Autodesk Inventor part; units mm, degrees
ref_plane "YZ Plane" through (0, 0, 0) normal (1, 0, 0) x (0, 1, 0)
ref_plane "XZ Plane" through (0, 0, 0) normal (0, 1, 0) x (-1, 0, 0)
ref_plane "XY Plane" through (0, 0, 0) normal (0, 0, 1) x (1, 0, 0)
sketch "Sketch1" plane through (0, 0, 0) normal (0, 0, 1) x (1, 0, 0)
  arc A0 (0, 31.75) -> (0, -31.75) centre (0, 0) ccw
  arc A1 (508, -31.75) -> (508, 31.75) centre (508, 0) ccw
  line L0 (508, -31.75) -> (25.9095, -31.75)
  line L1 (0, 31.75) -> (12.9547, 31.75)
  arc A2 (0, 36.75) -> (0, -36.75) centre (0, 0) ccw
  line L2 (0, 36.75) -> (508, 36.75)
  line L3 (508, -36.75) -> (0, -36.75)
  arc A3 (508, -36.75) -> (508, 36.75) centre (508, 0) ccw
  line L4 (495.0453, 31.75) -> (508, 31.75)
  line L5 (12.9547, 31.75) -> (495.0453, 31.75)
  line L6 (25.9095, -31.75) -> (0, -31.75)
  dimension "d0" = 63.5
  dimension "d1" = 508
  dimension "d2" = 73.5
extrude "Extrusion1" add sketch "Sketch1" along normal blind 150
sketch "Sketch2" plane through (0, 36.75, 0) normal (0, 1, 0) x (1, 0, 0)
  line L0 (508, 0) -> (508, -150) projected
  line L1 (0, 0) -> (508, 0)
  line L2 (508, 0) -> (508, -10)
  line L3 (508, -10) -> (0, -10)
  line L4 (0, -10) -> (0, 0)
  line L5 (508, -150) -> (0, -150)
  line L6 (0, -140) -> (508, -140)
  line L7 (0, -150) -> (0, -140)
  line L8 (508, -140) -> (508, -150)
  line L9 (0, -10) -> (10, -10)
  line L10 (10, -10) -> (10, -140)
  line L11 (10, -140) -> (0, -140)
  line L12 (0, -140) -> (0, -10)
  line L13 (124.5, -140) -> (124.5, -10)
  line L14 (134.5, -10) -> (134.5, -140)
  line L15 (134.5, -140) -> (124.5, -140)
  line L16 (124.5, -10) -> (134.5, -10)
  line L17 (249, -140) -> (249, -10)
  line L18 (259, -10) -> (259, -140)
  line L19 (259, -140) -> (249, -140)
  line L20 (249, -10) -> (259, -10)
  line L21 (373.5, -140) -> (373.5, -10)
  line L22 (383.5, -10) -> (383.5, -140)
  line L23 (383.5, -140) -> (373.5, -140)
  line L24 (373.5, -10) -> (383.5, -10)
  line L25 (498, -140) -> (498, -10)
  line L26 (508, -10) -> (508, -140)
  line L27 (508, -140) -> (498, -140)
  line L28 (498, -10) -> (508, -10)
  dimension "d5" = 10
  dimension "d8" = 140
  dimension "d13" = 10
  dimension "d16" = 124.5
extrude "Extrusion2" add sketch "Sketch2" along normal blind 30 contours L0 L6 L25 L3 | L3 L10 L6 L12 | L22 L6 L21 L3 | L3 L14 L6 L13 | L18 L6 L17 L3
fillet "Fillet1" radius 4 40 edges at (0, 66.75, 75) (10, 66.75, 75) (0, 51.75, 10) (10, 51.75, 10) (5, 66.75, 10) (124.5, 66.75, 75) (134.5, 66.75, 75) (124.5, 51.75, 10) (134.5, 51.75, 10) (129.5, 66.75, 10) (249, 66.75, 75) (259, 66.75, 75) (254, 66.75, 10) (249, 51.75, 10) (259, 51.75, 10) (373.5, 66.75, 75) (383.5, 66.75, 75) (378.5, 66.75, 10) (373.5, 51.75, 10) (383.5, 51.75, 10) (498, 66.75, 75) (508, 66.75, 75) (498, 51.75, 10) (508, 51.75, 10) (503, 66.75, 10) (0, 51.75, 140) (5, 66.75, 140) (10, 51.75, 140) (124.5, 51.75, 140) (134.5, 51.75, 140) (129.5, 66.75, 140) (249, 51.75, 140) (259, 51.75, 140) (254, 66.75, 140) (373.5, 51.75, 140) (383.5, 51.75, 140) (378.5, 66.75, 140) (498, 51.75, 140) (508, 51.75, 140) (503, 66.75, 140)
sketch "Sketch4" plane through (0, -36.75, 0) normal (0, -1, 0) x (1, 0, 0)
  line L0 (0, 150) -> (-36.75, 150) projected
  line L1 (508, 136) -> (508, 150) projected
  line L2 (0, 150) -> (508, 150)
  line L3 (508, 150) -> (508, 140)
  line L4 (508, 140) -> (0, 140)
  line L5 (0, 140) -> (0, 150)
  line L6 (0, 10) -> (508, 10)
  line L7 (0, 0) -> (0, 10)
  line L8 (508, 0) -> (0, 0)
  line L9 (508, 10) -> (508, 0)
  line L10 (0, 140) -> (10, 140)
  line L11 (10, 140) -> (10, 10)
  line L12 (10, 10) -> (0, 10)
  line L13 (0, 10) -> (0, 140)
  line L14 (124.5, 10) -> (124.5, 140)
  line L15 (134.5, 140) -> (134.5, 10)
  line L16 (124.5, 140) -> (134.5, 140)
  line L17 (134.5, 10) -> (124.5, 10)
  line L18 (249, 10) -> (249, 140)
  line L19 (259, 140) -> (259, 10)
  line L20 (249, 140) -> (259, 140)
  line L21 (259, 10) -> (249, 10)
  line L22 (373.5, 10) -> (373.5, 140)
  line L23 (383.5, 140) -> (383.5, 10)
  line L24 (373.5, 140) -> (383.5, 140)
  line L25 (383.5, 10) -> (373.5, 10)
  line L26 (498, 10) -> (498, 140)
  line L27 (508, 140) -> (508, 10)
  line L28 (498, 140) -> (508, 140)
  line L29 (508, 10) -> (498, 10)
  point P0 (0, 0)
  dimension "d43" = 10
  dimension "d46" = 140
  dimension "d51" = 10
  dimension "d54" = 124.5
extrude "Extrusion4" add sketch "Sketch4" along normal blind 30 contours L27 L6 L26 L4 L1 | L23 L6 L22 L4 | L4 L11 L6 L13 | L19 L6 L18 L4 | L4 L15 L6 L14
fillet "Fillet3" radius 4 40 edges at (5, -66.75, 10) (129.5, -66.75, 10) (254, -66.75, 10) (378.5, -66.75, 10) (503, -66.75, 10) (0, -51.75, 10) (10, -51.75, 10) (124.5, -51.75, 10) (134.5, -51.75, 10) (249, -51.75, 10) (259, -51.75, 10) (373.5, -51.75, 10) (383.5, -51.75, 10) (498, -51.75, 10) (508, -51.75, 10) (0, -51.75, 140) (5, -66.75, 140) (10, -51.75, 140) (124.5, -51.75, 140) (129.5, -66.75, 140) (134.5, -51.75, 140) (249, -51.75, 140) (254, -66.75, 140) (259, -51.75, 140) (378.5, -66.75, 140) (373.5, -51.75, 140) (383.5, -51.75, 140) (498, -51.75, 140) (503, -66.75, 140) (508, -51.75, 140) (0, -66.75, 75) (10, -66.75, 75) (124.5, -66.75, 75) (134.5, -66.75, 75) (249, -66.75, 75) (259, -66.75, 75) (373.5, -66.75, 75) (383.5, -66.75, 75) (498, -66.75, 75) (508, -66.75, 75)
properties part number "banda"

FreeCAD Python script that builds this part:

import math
import FreeCAD as App
import Part
import Sketcher
from FreeCAD import Vector
Q = App.Units.Quantity


def edges_at(feature, points):
    """Names of the edges that pass closest to the given points."""
    edges = feature.Shape.Edges
    near = lambda p: min(range(len(edges)), key=lambda i: edges[i].distToShape(Part.Vertex(*p))[0])
    return sorted({f"Edge{near(p) + 1}" for p in points})

doc = App.newDocument("Part")
body = doc.addObject("PartDesign::Body", "Body")

# Sketch on XY plane
sketch1 = body.newObject("Sketcher::SketchObject", "Sketch")
sketch1.AttachmentSupport = (doc.getObject("XY_Plane"), [""])
sketch1.MapMode = "FlatFace"
sketch1.addGeometry(Part.LineSegment(Vector(508, 37, 0), Vector(0, 37, 0)), False)
sketch1.addGeometry(Part.ArcOfCircle(Part.Circle(Vector(0, 0, 0), Vector(0, 0, 1), 37), math.radians(90), math.radians(270)), False)
sketch1.addGeometry(Part.LineSegment(Vector(0, -37, 0), Vector(508, -37, 0)), False)
sketch1.addGeometry(Part.ArcOfCircle(Part.Circle(Vector(508, 0, 0), Vector(0, 0, 1), 37), math.radians(-90), math.radians(90)), False)
sketch1.addGeometry(Part.ArcOfCircle(Part.Circle(Vector(0, 0, 0), Vector(0, 0, 1), 32), math.radians(90), math.radians(270)), False)
sketch1.addGeometry(Part.LineSegment(Vector(0, 32, 0), Vector(508, 32, 0)), False)
sketch1.addGeometry(Part.ArcOfCircle(Part.Circle(Vector(508, 0, 0), Vector(0, 0, 1), 32), math.radians(-90), math.radians(90)), False)
sketch1.addGeometry(Part.LineSegment(Vector(508, -32, 0), Vector(0, -32, 0)), False)
sketch1.addConstraint(Sketcher.Constraint("Tangent", 0, 2, 1, 1))
sketch1.addConstraint(Sketcher.Constraint("Tangent", 1, 2, 2, 1))
sketch1.addConstraint(Sketcher.Constraint("Tangent", 2, 2, 3, 1))
sketch1.addConstraint(Sketcher.Constraint("Tangent", 3, 2, 0, 1))
sketch1.addConstraint(Sketcher.Constraint("Tangent", 4, 1, 5, 1))
sketch1.addConstraint(Sketcher.Constraint("Tangent", 5, 2, 6, 2))
sketch1.addConstraint(Sketcher.Constraint("Tangent", 6, 1, 7, 1))
sketch1.addConstraint(Sketcher.Constraint("Tangent", 7, 2, 4, 2))
sketch1.addConstraint(Sketcher.Constraint("Horizontal", 0))
sketch1.addConstraint(Sketcher.Constraint("Horizontal", 2))
sketch1.addConstraint(Sketcher.Constraint("Horizontal", 5))
sketch1.addConstraint(Sketcher.Constraint("Horizontal", 7))
sketch1.addConstraint(Sketcher.Constraint("Coincident", 1, 3, -1, 1))
sketch1.addConstraint(Sketcher.Constraint("Coincident", 4, 3, -1, 1))
sketch1.addConstraint(Sketcher.Constraint("Vertical", 6, 3, 2, 2))
sketch1.addConstraint(Sketcher.Constraint("DistanceX", 0, 2, 0, 1, Q("20 in")))
sketch1.addConstraint(Sketcher.Constraint("Radius", 4, Q("1.25 in")))
sketch1.addConstraint(Sketcher.Constraint("Radius", 1, 36.75))
pad1 = body.newObject("PartDesign::Pad", "Pad")
pad1.Profile = sketch1
pad1.Length = Q("5.9055118 in")

# Sketch on XZ plane
sketch2 = body.newObject("Sketcher::SketchObject", "Sketch001")
sketch2.AttachmentSupport = (doc.getObject("XZ_Plane"), [""])
sketch2.MapMode = "FlatFace"
sketch2.AttachmentOffset = App.Placement(Vector(0, 0, -36.75), App.Rotation())
sketch2.addGeometry(Part.LineSegment(Vector(508, 140, 0), Vector(508, 10, 0)), False)
sketch2.addGeometry(Part.LineSegment(Vector(508, 10, 0), Vector(498, 10, 0)), False)
sketch2.addGeometry(Part.LineSegment(Vector(498, 10, 0), Vector(498, 140, 0)), False)
sketch2.addGeometry(Part.LineSegment(Vector(498, 140, 0), Vector(508, 140, 0)), False)
sketch2.addGeometry(Part.LineSegment(Vector(10, 10, 0), Vector(0, 10, 0)), False)
sketch2.addGeometry(Part.LineSegment(Vector(0, 10, 0), Vector(0, 140, 0)), False)
sketch2.addGeometry(Part.LineSegment(Vector(0, 140, 0), Vector(10, 140, 0)), False)
sketch2.addGeometry(Part.LineSegment(Vector(10, 140, 0), Vector(10, 10, 0)), False)
sketch2.addGeometry(Part.LineSegment(Vector(384, 140, 0), Vector(384, 10, 0)), False)
sketch2.addGeometry(Part.LineSegment(Vector(384, 10, 0), Vector(374, 10, 0)), False)
sketch2.addGeometry(Part.LineSegment(Vector(374, 10, 0), Vector(374, 140, 0)), False)
sketch2.addGeometry(Part.LineSegment(Vector(374, 140, 0), Vector(384, 140, 0)), False)
sketch2.addGeometry(Part.LineSegment(Vector(134, 10, 0), Vector(124, 10, 0)), False)
sketch2.addGeometry(Part.LineSegment(Vector(124, 10, 0), Vector(124, 140, 0)), False)
sketch2.addGeometry(Part.LineSegment(Vector(124, 140, 0), Vector(134, 140, 0)), False)
sketch2.addGeometry(Part.LineSegment(Vector(134, 140, 0), Vector(134, 10, 0)), False)
sketch2.addGeometry(Part.LineSegment(Vector(259, 140, 0), Vector(259, 10, 0)), False)
sketch2.addGeometry(Part.LineSegment(Vector(259, 10, 0), Vector(249, 10, 0)), False)
sketch2.addGeometry(Part.LineSegment(Vector(249, 10, 0), Vector(249, 140, 0)), False)
sketch2.addGeometry(Part.LineSegment(Vector(249, 140, 0), Vector(259, 140, 0)), False)
sketch2.addConstraint(Sketcher.Constraint("Coincident", 0, 2, 1, 1))
sketch2.addConstraint(Sketcher.Constraint("Coincident", 1, 2, 2, 1))
sketch2.addConstraint(Sketcher.Constraint("Coincident", 2, 2, 3, 1))
sketch2.addConstraint(Sketcher.Constraint("Coincident", 3, 2, 0, 1))
sketch2.addConstraint(Sketcher.Constraint("Coincident", 4, 2, 5, 1))
sketch2.addConstraint(Sketcher.Constraint("Coincident", 5, 2, 6, 1))
sketch2.addConstraint(Sketcher.Constraint("Coincident", 6, 2, 7, 1))
sketch2.addConstraint(Sketcher.Constraint("Coincident", 7, 2, 4, 1))
sketch2.addConstraint(Sketcher.Constraint("Coincident", 8, 2, 9, 1))
sketch2.addConstraint(Sketcher.Constraint("Coincident", 9, 2, 10, 1))
sketch2.addConstraint(Sketcher.Constraint("Coincident", 10, 2, 11, 1))
sketch2.addConstraint(Sketcher.Constraint("Coincident", 11, 2, 8, 1))
sketch2.addConstraint(Sketcher.Constraint("Coincident", 12, 2, 13, 1))
sketch2.addConstraint(Sketcher.Constraint("Coincident", 13, 2, 14, 1))
sketch2.addConstraint(Sketcher.Constraint("Coincident", 14, 2, 15, 1))
sketch2.addConstraint(Sketcher.Constraint("Coincident", 15, 2, 12, 1))
sketch2.addConstraint(Sketcher.Constraint("Coincident", 16, 2, 17, 1))
sketch2.addConstraint(Sketcher.Constraint("Coincident", 17, 2, 18, 1))
sketch2.addConstraint(Sketcher.Constraint("Coincident", 18, 2, 19, 1))
sketch2.addConstraint(Sketcher.Constraint("Coincident", 19, 2, 16, 1))
sketch2.addConstraint(Sketcher.Constraint("Vertical", 0))
sketch2.addConstraint(Sketcher.Constraint("Horizontal", 1))
sketch2.addConstraint(Sketcher.Constraint("Vertical", 2))
sketch2.addConstraint(Sketcher.Constraint("Horizontal", 3))
sketch2.addConstraint(Sketcher.Constraint("Horizontal", 4))
sketch2.addConstraint(Sketcher.Constraint("Vertical", 5))
sketch2.addConstraint(Sketcher.Constraint("Horizontal", 6))
sketch2.addConstraint(Sketcher.Constraint("Vertical", 7))
sketch2.addConstraint(Sketcher.Constraint("Vertical", 8))
sketch2.addConstraint(Sketcher.Constraint("Horizontal", 9))
sketch2.addConstraint(Sketcher.Constraint("Vertical", 10))
sketch2.addConstraint(Sketcher.Constraint("Horizontal", 11))
sketch2.addConstraint(Sketcher.Constraint("Horizontal", 12))
sketch2.addConstraint(Sketcher.Constraint("Vertical", 13))
sketch2.addConstraint(Sketcher.Constraint("Horizontal", 14))
sketch2.addConstraint(Sketcher.Constraint("Vertical", 15))
sketch2.addConstraint(Sketcher.Constraint("Vertical", 16))
sketch2.addConstraint(Sketcher.Constraint("Horizontal", 17))
sketch2.addConstraint(Sketcher.Constraint("Vertical", 18))
sketch2.addConstraint(Sketcher.Constraint("Horizontal", 19))
sketch2.addConstraint(Sketcher.Constraint("PointOnObject", 4, 2, -2))
sketch2.addConstraint(Sketcher.Constraint("Horizontal", 1, 2, 4, 2))
sketch2.addConstraint(Sketcher.Constraint("Horizontal", 3, 2, 5, 2))
sketch2.addConstraint(Sketcher.Constraint("Horizontal", 7, 2, 8, 2))
sketch2.addConstraint(Sketcher.Constraint("Horizontal", 6, 2, 10, 2))
sketch2.addConstraint(Sketcher.Constraint("Horizontal", 9, 2, 12, 2))
sketch2.addConstraint(Sketcher.Constraint("Horizontal", 11, 2, 13, 2))
sketch2.addConstraint(Sketcher.Constraint("Horizontal", 15, 2, 16, 2))
sketch2.addConstraint(Sketcher.Constraint("Horizontal", 14, 2, 18, 2))
sketch2.addConstraint(Sketcher.Constraint("Equal", 3, 4))
sketch2.addConstraint(Sketcher.Constraint("Equal", 6, 9))
sketch2.addConstraint(Sketcher.Constraint("Equal", 11, 12))
sketch2.addConstraint(Sketcher.Constraint("Equal", 14, 17))
sketch2.addConstraint(Sketcher.Constraint("DistanceX", 1, 2, 1, 1, Q("0.3937 in")))
sketch2.addConstraint(Sketcher.Constraint("DistanceX", -1, 1, 0, 2, Q("20 in")))
sketch2.addConstraint(Sketcher.Constraint("DistanceY", -1, 1, 0, 2, Q("0.3937 in")))
sketch2.addConstraint(Sketcher.Constraint("DistanceY", -1, 1, 2, 2, Q("5.5118 in")))
sketch2.addConstraint(Sketcher.Constraint("DistanceX", -1, 1, 12, 2, 124.5))
sketch2.addConstraint(Sketcher.Constraint("DistanceX", 8, 2, 0, 2, 124.5))
sketch2.addConstraint(Sketcher.Constraint("DistanceX", 16, 2, 8, 2, 124.5))
pad2 = body.newObject("PartDesign::Pad", "Pad001")
pad2.Profile = sketch2
pad2.Length = Q("1.1811024 in")
pad2.Reversed = True
doc.recompute()

fillet = body.newObject("PartDesign::Fillet", "Fillet")
fillet.Base = (pad2, edges_at(pad2, [
    (0, 66.75, 75),
    (10, 66.75, 75),
    (0, 51.75, 10),
    (10, 51.75, 10),
    (5, 66.75, 10),
    (124.5, 66.75, 75),
    (134.5, 66.75, 75),
    (124.5, 51.75, 10),
    (134.5, 51.75, 10),
    (129.5, 66.75, 10),
    (249, 66.75, 75),
    (259, 66.75, 75),
    (254, 66.75, 10),
    (249, 51.75, 10),
    (259, 51.75, 10),
    (373.5, 66.75, 75),
    (383.5, 66.75, 75),
    (378.5, 66.75, 10),
    (373.5, 51.75, 10),
    (383.5, 51.75, 10),
    (498, 66.75, 75),
    (508, 66.75, 75),
    (498, 51.75, 10),
    (508, 51.75, 10),
    (503, 66.75, 10),
    (0, 51.75, 140),
    (5, 66.75, 140),
    (10, 51.75, 140),
    (124.5, 51.75, 140),
    (134.5, 51.75, 140),
    (129.5, 66.75, 140),
    (249, 51.75, 140),
    (259, 51.75, 140),
    (254, 66.75, 140),
    (373.5, 51.75, 140),
    (383.5, 51.75, 140),
    (378.5, 66.75, 140),
    (498, 51.75, 140),
    (508, 51.75, 140),
    (503, 66.75, 140),
]))
fillet.Radius = 4

# Sketch on XZ plane
sketch3 = body.newObject("Sketcher::SketchObject", "Sketch002")
sketch3.AttachmentSupport = (doc.getObject("XZ_Plane"), [""])
sketch3.MapMode = "FlatFace"
sketch3.AttachmentOffset = App.Placement(Vector(0, 0, 36.75), App.Rotation())
sketch3.addGeometry(Part.LineSegment(Vector(508, 10, 0), Vector(508, 140, 0)), False)
sketch3.addGeometry(Part.LineSegment(Vector(508, 140, 0), Vector(498, 140, 0)), False)
sketch3.addGeometry(Part.LineSegment(Vector(498, 140, 0), Vector(498, 10, 0)), False)
sketch3.addGeometry(Part.LineSegment(Vector(498, 10, 0), Vector(508, 10, 0)), False)
sketch3.addGeometry(Part.LineSegment(Vector(384, 10, 0), Vector(384, 140, 0)), False)
sketch3.addGeometry(Part.LineSegment(Vector(384, 140, 0), Vector(374, 140, 0)), False)
sketch3.addGeometry(Part.LineSegment(Vector(374, 140, 0), Vector(374, 10, 0)), False)
sketch3.addGeometry(Part.LineSegment(Vector(374, 10, 0), Vector(384, 10, 0)), False)
sketch3.addGeometry(Part.LineSegment(Vector(10, 140, 0), Vector(0, 140, 0)), False)
sketch3.addGeometry(Part.LineSegment(Vector(0, 140, 0), Vector(0, 10, 0)), False)
sketch3.addGeometry(Part.LineSegment(Vector(0, 10, 0), Vector(10, 10, 0)), False)
sketch3.addGeometry(Part.LineSegment(Vector(10, 10, 0), Vector(10, 140, 0)), False)
sketch3.addGeometry(Part.LineSegment(Vector(259, 10, 0), Vector(259, 140, 0)), False)
sketch3.addGeometry(Part.LineSegment(Vector(259, 140, 0), Vector(249, 140, 0)), False)
sketch3.addGeometry(Part.LineSegment(Vector(249, 140, 0), Vector(249, 10, 0)), False)
sketch3.addGeometry(Part.LineSegment(Vector(249, 10, 0), Vector(259, 10, 0)), False)
sketch3.addGeometry(Part.LineSegment(Vector(134, 140, 0), Vector(124, 140, 0)), False)
sketch3.addGeometry(Part.LineSegment(Vector(124, 140, 0), Vector(124, 10, 0)), False)
sketch3.addGeometry(Part.LineSegment(Vector(124, 10, 0), Vector(134, 10, 0)), False)
sketch3.addGeometry(Part.LineSegment(Vector(134, 10, 0), Vector(134, 140, 0)), False)
sketch3.addConstraint(Sketcher.Constraint("Coincident", 0, 2, 1, 1))
sketch3.addConstraint(Sketcher.Constraint("Coincident", 1, 2, 2, 1))
sketch3.addConstraint(Sketcher.Constraint("Coincident", 2, 2, 3, 1))
sketch3.addConstraint(Sketcher.Constraint("Coincident", 3, 2, 0, 1))
sketch3.addConstraint(Sketcher.Constraint("Coincident", 4, 2, 5, 1))
sketch3.addConstraint(Sketcher.Constraint("Coincident", 5, 2, 6, 1))
sketch3.addConstraint(Sketcher.Constraint("Coincident", 6, 2, 7, 1))
sketch3.addConstraint(Sketcher.Constraint("Coincident", 7, 2, 4, 1))
sketch3.addConstraint(Sketcher.Constraint("Coincident", 8, 2, 9, 1))
sketch3.addConstraint(Sketcher.Constraint("Coincident", 9, 2, 10, 1))
sketch3.addConstraint(Sketcher.Constraint("Coincident", 10, 2, 11, 1))
sketch3.addConstraint(Sketcher.Constraint("Coincident", 11, 2, 8, 1))
sketch3.addConstraint(Sketcher.Constraint("Coincident", 12, 2, 13, 1))
sketch3.addConstraint(Sketcher.Constraint("Coincident", 13, 2, 14, 1))
sketch3.addConstraint(Sketcher.Constraint("Coincident", 14, 2, 15, 1))
sketch3.addConstraint(Sketcher.Constraint("Coincident", 15, 2, 12, 1))
sketch3.addConstraint(Sketcher.Constraint("Coincident", 16, 2, 17, 1))
sketch3.addConstraint(Sketcher.Constraint("Coincident", 17, 2, 18, 1))
sketch3.addConstraint(Sketcher.Constraint("Coincident", 18, 2, 19, 1))
sketch3.addConstraint(Sketcher.Constraint("Coincident", 19, 2, 16, 1))
sketch3.addConstraint(Sketcher.Constraint("Vertical", 0))
sketch3.addConstraint(Sketcher.Constraint("Horizontal", 1))
sketch3.addConstraint(Sketcher.Constraint("Vertical", 2))
sketch3.addConstraint(Sketcher.Constraint("Horizontal", 3))
sketch3.addConstraint(Sketcher.Constraint("Vertical", 4))
sketch3.addConstraint(Sketcher.Constraint("Horizontal", 5))
sketch3.addConstraint(Sketcher.Constraint("Vertical", 6))
sketch3.addConstraint(Sketcher.Constraint("Horizontal", 7))
sketch3.addConstraint(Sketcher.Constraint("Horizontal", 8))
sketch3.addConstraint(Sketcher.Constraint("Vertical", 9))
sketch3.addConstraint(Sketcher.Constraint("Horizontal", 10))
sketch3.addConstraint(Sketcher.Constraint("Vertical", 11))
sketch3.addConstraint(Sketcher.Constraint("Vertical", 12))
sketch3.addConstraint(Sketcher.Constraint("Horizontal", 13))
sketch3.addConstraint(Sketcher.Constraint("Vertical", 14))
sketch3.addConstraint(Sketcher.Constraint("Horizontal", 15))
sketch3.addConstraint(Sketcher.Constraint("Horizontal", 16))
sketch3.addConstraint(Sketcher.Constraint("Vertical", 17))
sketch3.addConstraint(Sketcher.Constraint("Horizontal", 18))
sketch3.addConstraint(Sketcher.Constraint("Vertical", 19))
sketch3.addConstraint(Sketcher.Constraint("PointOnObject", 8, 2, -2))
sketch3.addConstraint(Sketcher.Constraint("Horizontal", 1, 2, 4, 2))
sketch3.addConstraint(Sketcher.Constraint("Horizontal", 3, 2, 6, 2))
sketch3.addConstraint(Sketcher.Constraint("Horizontal", 5, 2, 8, 2))
sketch3.addConstraint(Sketcher.Constraint("Horizontal", 7, 2, 9, 2))
sketch3.addConstraint(Sketcher.Constraint("Horizontal", 11, 2, 12, 2))
sketch3.addConstraint(Sketcher.Constraint("Horizontal", 10, 2, 14, 2))
sketch3.addConstraint(Sketcher.Constraint("Horizontal", 13, 2, 16, 2))
sketch3.addConstraint(Sketcher.Constraint("Horizontal", 15, 2, 17, 2))
sketch3.addConstraint(Sketcher.Constraint("Equal", 3, 5))
sketch3.addConstraint(Sketcher.Constraint("Equal", 7, 8))
sketch3.addConstraint(Sketcher.Constraint("Equal", 10, 13))
sketch3.addConstraint(Sketcher.Constraint("Equal", 15, 16))
sketch3.addConstraint(Sketcher.Constraint("DistanceX", 1, 2, 1, 1, Q("0.3937 in")))
sketch3.addConstraint(Sketcher.Constraint("DistanceX", -1, 1, 0, 2, Q("20 in")))
sketch3.addConstraint(Sketcher.Constraint("DistanceY", -1, 1, 0, 2, Q("5.5118 in")))
sketch3.addConstraint(Sketcher.Constraint("DistanceY", -1, 1, 2, 2, Q("0.3937 in")))
sketch3.addConstraint(Sketcher.Constraint("DistanceX", -1, 1, 16, 2, 124.5))
sketch3.addConstraint(Sketcher.Constraint("DistanceX", 4, 2, 0, 2, 124.5))
sketch3.addConstraint(Sketcher.Constraint("DistanceX", 12, 2, 4, 2, 124.5))
pad3 = body.newObject("PartDesign::Pad", "Pad002")
pad3.Profile = sketch3
pad3.Length = Q("1.1811024 in")
doc.recompute()

fillet2 = body.newObject("PartDesign::Fillet", "Fillet001")
fillet2.Base = (pad3, edges_at(pad3, [
    (5, -66.75, 10),
    (129.5, -66.75, 10),
    (254, -66.75, 10),
    (378.5, -66.75, 10),
    (503, -66.75, 10),
    (0, -51.75, 10),
    (10, -51.75, 10),
    (124.5, -51.75, 10),
    (134.5, -51.75, 10),
    (249, -51.75, 10),
    (259, -51.75, 10),
    (373.5, -51.75, 10),
    (383.5, -51.75, 10),
    (498, -51.75, 10),
    (508, -51.75, 10),
    (0, -51.75, 140),
    (5, -66.75, 140),
    (10, -51.75, 140),
    (124.5, -51.75, 140),
    (129.5, -66.75, 140),
    (134.5, -51.75, 140),
    (249, -51.75, 140),
    (254, -66.75, 140),
    (259, -51.75, 140),
    (378.5, -66.75, 140),
    (373.5, -51.75, 140),
    (383.5, -51.75, 140),
    (498, -51.75, 140),
    (503, -66.75, 140),
    (508, -51.75, 140),
    (0, -66.75, 75),
    (10, -66.75, 75),
    (124.5, -66.75, 75),
    (134.5, -66.75, 75),
    (249, -66.75, 75),
    (259, -66.75, 75),
    (373.5, -66.75, 75),
    (383.5, -66.75, 75),
    (498, -66.75, 75),
    (508, -66.75, 75),
]))
fillet2.Radius = 4

doc.recompute()
